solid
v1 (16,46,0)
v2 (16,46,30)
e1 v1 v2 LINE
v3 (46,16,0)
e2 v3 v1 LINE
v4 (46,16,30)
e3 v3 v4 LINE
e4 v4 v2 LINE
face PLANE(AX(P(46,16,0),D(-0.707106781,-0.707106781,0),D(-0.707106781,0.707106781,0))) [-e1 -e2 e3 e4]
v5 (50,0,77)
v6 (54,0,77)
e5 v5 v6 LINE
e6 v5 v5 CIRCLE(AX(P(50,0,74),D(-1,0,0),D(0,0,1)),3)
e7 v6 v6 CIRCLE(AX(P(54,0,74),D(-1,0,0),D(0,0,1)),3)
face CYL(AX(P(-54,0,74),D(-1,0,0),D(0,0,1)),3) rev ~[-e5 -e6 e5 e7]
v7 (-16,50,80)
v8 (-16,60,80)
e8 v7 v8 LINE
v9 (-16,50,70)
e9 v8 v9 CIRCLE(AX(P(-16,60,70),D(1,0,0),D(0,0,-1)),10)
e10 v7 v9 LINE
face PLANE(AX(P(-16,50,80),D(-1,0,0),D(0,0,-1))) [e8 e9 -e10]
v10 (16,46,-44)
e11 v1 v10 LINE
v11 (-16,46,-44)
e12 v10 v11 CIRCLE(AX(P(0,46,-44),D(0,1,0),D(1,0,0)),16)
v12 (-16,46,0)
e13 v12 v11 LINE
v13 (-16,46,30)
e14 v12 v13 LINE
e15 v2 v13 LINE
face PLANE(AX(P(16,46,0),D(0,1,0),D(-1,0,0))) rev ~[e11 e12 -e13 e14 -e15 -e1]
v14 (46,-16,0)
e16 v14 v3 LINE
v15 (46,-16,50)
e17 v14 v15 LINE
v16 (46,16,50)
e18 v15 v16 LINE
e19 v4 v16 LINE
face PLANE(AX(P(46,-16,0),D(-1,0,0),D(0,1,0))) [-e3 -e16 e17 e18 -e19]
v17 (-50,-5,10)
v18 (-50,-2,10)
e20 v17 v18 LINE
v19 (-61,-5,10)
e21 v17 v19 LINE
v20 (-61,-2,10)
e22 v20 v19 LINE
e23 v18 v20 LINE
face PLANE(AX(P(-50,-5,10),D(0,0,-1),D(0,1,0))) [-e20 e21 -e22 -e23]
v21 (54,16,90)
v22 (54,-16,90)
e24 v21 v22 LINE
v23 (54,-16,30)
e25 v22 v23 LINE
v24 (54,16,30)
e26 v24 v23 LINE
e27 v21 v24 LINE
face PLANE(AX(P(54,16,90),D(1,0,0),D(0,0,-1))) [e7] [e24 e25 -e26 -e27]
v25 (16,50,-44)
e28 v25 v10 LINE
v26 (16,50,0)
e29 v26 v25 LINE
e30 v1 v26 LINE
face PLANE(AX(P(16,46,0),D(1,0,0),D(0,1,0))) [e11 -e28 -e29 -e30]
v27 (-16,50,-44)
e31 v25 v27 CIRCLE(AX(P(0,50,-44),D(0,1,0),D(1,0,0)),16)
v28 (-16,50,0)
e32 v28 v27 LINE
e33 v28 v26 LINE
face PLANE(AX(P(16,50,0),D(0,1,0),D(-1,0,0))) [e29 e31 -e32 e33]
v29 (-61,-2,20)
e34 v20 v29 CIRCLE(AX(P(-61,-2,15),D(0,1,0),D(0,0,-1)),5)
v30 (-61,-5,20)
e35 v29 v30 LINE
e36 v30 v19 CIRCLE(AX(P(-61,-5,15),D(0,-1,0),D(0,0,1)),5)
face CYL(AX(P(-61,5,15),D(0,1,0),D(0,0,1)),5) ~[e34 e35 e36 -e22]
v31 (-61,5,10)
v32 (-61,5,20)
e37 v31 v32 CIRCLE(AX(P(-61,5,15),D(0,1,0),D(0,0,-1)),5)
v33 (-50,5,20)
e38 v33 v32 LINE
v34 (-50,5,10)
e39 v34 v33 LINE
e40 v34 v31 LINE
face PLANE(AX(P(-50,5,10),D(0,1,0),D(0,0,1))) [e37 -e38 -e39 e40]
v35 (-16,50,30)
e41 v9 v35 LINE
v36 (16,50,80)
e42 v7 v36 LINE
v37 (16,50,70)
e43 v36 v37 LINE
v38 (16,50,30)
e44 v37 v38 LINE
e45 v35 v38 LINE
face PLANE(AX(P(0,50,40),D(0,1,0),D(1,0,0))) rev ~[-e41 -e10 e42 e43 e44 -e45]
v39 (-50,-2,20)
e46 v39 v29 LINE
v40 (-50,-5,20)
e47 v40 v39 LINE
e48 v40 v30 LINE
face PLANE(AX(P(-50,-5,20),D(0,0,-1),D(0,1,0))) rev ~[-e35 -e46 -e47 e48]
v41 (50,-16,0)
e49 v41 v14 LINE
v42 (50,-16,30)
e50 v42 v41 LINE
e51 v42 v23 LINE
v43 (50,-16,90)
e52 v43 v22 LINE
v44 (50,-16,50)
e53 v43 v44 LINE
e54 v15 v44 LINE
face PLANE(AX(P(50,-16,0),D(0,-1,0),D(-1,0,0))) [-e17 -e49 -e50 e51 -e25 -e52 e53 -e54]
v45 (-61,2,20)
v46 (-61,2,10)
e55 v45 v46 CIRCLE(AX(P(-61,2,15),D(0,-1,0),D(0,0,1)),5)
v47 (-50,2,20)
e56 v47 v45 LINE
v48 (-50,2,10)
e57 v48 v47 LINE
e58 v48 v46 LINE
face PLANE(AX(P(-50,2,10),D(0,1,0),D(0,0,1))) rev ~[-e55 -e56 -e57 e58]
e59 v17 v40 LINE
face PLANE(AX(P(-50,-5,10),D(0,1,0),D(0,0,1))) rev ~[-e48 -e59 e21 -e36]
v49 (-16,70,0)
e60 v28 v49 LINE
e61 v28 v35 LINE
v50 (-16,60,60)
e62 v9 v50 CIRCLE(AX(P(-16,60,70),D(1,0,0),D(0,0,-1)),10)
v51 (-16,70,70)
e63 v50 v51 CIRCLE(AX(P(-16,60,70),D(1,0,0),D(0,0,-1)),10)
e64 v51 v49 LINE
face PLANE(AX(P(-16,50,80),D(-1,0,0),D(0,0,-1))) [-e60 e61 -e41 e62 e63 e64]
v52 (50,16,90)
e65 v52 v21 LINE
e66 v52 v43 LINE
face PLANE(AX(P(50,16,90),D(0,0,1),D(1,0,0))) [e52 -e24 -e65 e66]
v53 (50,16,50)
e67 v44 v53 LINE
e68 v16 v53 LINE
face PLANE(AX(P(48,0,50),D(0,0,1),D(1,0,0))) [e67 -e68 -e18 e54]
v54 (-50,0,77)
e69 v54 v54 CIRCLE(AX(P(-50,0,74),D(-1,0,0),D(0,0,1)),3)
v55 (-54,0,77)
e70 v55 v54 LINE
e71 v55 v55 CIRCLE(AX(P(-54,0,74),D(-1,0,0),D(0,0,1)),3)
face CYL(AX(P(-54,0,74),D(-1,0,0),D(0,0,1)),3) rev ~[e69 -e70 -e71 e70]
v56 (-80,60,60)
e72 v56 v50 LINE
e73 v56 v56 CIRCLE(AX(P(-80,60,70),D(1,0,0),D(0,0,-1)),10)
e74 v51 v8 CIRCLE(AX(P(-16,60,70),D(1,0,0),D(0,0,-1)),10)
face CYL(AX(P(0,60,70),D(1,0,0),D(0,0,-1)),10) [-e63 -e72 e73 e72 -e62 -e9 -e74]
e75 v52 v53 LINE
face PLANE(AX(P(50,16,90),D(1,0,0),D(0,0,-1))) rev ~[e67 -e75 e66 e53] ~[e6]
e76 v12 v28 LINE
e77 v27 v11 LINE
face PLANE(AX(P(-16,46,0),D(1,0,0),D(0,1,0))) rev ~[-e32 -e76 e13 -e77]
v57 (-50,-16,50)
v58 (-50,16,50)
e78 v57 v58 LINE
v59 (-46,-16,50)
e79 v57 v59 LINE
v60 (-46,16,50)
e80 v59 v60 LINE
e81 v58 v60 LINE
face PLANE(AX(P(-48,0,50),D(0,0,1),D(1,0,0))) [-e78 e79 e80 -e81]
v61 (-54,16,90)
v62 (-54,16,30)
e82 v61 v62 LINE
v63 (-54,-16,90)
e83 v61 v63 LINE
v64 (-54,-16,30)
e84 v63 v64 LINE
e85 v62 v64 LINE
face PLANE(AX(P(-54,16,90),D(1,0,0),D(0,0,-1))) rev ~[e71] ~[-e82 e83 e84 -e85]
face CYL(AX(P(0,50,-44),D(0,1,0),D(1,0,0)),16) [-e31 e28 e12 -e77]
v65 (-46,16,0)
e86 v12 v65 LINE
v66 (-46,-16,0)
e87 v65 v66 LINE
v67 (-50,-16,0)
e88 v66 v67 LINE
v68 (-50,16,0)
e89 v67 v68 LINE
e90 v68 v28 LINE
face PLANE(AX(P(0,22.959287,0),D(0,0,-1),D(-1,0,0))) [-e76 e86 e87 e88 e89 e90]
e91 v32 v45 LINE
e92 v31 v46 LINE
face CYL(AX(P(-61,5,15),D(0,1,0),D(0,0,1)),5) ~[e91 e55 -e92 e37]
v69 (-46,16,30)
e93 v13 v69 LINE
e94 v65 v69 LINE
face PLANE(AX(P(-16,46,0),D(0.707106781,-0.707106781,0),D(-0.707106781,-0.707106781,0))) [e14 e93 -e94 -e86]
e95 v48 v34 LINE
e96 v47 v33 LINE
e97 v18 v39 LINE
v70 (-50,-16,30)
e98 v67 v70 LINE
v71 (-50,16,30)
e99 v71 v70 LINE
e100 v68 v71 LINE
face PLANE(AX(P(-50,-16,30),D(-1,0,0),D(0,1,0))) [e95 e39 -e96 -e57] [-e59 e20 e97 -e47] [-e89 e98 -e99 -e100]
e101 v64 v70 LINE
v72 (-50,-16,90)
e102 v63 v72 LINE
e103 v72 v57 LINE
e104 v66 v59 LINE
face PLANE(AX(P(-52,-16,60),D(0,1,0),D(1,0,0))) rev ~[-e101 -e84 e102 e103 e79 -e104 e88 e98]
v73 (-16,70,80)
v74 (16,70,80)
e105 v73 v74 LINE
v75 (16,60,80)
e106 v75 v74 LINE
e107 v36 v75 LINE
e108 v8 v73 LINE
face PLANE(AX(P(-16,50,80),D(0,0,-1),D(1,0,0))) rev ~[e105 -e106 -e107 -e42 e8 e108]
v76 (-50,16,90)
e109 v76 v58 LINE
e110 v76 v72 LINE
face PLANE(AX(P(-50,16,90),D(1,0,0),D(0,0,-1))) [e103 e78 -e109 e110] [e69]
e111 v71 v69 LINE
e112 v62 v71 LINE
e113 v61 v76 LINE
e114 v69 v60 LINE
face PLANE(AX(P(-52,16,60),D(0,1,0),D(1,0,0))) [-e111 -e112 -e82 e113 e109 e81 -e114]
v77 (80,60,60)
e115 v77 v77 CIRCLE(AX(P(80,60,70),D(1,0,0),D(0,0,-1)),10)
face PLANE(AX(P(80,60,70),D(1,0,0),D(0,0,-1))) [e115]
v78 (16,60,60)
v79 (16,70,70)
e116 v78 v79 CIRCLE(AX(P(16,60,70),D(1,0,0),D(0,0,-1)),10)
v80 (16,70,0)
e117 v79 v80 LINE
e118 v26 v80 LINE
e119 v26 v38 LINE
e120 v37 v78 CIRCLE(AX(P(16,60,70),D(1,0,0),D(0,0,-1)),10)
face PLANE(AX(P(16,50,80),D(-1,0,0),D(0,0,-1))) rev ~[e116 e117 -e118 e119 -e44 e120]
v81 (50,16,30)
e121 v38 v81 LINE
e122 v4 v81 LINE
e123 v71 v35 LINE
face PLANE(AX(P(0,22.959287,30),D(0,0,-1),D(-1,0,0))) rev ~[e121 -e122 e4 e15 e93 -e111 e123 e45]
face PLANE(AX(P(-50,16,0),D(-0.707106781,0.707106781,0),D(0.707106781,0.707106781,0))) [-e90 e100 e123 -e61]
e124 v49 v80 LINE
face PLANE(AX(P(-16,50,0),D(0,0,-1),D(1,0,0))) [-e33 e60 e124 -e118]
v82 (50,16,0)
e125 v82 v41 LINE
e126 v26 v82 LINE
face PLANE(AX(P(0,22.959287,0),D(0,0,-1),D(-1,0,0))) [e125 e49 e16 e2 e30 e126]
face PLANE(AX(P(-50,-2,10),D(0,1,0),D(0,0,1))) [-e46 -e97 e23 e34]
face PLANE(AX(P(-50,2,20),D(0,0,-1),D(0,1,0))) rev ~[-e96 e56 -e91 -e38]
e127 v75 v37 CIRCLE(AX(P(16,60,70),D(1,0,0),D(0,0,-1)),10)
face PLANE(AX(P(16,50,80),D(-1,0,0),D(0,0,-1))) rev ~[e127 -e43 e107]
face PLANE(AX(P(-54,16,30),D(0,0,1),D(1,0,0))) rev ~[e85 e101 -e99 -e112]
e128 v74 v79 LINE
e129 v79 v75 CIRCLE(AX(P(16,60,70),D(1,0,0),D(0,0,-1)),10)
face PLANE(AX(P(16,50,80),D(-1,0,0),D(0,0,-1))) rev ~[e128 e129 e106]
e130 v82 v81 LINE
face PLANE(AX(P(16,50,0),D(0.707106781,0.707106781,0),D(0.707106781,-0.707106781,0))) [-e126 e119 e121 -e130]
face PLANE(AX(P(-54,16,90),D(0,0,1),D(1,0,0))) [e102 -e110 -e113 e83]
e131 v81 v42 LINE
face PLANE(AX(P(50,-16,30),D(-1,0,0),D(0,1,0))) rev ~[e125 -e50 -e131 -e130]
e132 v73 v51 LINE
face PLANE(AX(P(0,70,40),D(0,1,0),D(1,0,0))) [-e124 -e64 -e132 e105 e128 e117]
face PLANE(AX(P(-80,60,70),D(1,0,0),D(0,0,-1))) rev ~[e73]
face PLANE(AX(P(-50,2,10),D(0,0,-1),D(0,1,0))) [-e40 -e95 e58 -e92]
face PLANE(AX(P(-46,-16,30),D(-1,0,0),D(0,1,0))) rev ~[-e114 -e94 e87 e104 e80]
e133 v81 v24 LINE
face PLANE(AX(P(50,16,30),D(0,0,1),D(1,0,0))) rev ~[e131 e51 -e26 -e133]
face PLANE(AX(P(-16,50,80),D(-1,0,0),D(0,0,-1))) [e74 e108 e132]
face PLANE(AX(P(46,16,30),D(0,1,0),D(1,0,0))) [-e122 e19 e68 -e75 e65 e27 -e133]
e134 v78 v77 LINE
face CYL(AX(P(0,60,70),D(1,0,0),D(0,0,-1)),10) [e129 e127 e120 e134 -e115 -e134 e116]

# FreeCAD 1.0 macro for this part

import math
import FreeCAD as App
import Part
import Sketcher


def add_polygon(sketch, points):
    """Adds a closed chain of lines whose ends are joined by coincident constraints."""
    first, n = sketch.GeometryCount, len(points)
    for a, b in zip(points, points[1:] + points[:1]):
        sketch.addGeometry(Part.LineSegment(App.Vector(*a, 0), App.Vector(*b, 0)), False)
    for i in range(n):
        sketch.addConstraint(Sketcher.Constraint("Coincident", first + i, 2, first + (i + 1) % n, 1))

doc = App.newDocument("Part")
body = doc.addObject("PartDesign::Body", "Body")

sketch1 = body.newObject("Sketcher::SketchObject", "Sketch")
sketch1.AttachmentSupport = (doc.getObject("XY_Plane"), [""])
sketch1.MapMode = "FlatFace"
add_polygon(sketch1, [(-16, 50), (-50, 16), (-50, -16), (-46, -16), (-46, 16), (-16, 46), (16, 46), (46, 16), (46, -16), (50, -16), (50, 16), (16, 50)])
sketch1.addConstraint([
    Sketcher.Constraint("Vertical", 1),
    Sketcher.Constraint("Horizontal", 2),
    Sketcher.Constraint("Vertical", 3),
    Sketcher.Constraint("Horizontal", 5),
    Sketcher.Constraint("Vertical", 7),
    Sketcher.Constraint("Horizontal", 8),
    Sketcher.Constraint("Vertical", 9),
    Sketcher.Constraint("Horizontal", 11),
    Sketcher.Constraint("Symmetric", 2, 2, 6, 2, -1, 1),
    Sketcher.Constraint("Symmetric", 0, 2, 8, 2, -1, 1),
    Sketcher.Constraint("Parallel", 0, 4),
    Sketcher.Constraint("Perpendicular", 4, 6),
    Sketcher.Constraint("Parallel", 6, 10),
    Sketcher.Constraint("Horizontal", 0, 2, 3, 2),
    Sketcher.Constraint("Horizontal", 3, 2, 6, 2),
    Sketcher.Constraint("Horizontal", 6, 2, 9, 2),
    Sketcher.Constraint("Vertical", 5, 2, 10, 2),
    Sketcher.Constraint("Vertical", 4, 2, 11, 2),
    Sketcher.Constraint("Equal", 11, 1),
    Sketcher.Constraint("DistanceX", 2, 1, 2, 2, 4.0),
    Sketcher.Constraint("DistanceX", 5, 1, 5, 2, 32.0),
    Sketcher.Constraint("DistanceX", 0, 2, -1, 1, 50.0),
])
pad1 = body.newObject("PartDesign::Pad", "Pad")
pad1.Profile = sketch1
pad1.Length = 30

sketch2 = body.newObject("Sketcher::SketchObject", "Sketch001")
sketch2.AttachmentSupport = (doc.getObject("XY_Plane"), [""])
sketch2.MapMode = "FlatFace"
add_polygon(sketch2, [(16, 50), (16, 46), (-16, 46), (-16, 50)])
sketch2.addConstraint([
    Sketcher.Constraint("Vertical", 0),
    Sketcher.Constraint("Horizontal", 1),
    Sketcher.Constraint("Vertical", 2),
    Sketcher.Constraint("Horizontal", 3),
    Sketcher.Constraint("DistanceX", 1, 2, 1, 1, 32.0),
    Sketcher.Constraint("DistanceY", 0, 2, 0, 1, 4.0),
    Sketcher.Constraint("DistanceX", -1, 1, 0, 2, 16.0),
    Sketcher.Constraint("DistanceY", -1, 1, 0, 2, 46.0),
])
pad2 = body.newObject("PartDesign::Pad", "Pad001")
pad2.Profile = sketch2
pad2.Length = 60
pad2.Reversed = True

sketch3 = body.newObject("Sketcher::SketchObject", "Sketch002")
sketch3.AttachmentSupport = (doc.getObject("XZ_Plane"), [""])
sketch3.MapMode = "FlatFace"
sketch3.AttachmentOffset = App.Placement(App.Vector(0, 0, -50), App.Rotation())
sketch3.addGeometry([
    Part.LineSegment(App.Vector(-16, -67, 0), App.Vector(-16, -44, 0)),
    Part.ArcOfCircle(Part.Circle(App.Vector(0, -44, 0), App.Vector(0, 0, 1), 16), math.radians(180), math.radians(360)),
    Part.LineSegment(App.Vector(16, -44, 0), App.Vector(16, -67, 0)),
    Part.LineSegment(App.Vector(16, -67, 0), App.Vector(-16, -67, 0)),
], False)
sketch3.addConstraint([
    Sketcher.Constraint("Tangent", 0, 2, 1, 1),
    Sketcher.Constraint("Tangent", 1, 2, 2, 1),
    Sketcher.Constraint("Coincident", 2, 2, 3, 1),
    Sketcher.Constraint("Coincident", 3, 2, 0, 1),
    Sketcher.Constraint("Vertical", 0),
    Sketcher.Constraint("Vertical", 2),
    Sketcher.Constraint("Horizontal", 3),
    Sketcher.Constraint("PointOnObject", 1, 3, -2),
    Sketcher.Constraint("Radius", 1, 16.0),
    Sketcher.Constraint("DistanceY", 1, 3, -1, 1, 44.0),
    Sketcher.Constraint("DistanceY", 0, 1, 0, 2, 23.226605),
])
pocket1 = body.newObject("PartDesign::Pocket", "Pocket")
pocket1.Profile = sketch3
pocket1.Length = 30
pocket1.Reversed = True

sketch4 = body.newObject("Sketcher::SketchObject", "Sketch003")
sketch4.AttachmentSupport = (doc.getObject("YZ_Plane"), [""])
sketch4.MapMode = "FlatFace"
sketch4.AttachmentOffset = App.Placement(App.Vector(0, 0, -50), App.Rotation())
add_polygon(sketch4, [(-2, 10), (-5, 10), (-5, 20), (-2, 20)])
add_polygon(sketch4, [(5, 10), (2, 10), (2, 20), (5, 20)])
sketch4.addConstraint([
    Sketcher.Constraint("Horizontal", 0),
    Sketcher.Constraint("Vertical", 1),
    Sketcher.Constraint("Horizontal", 2),
    Sketcher.Constraint("Vertical", 3),
    Sketcher.Constraint("Horizontal", 4),
    Sketcher.Constraint("Vertical", 5),
    Sketcher.Constraint("Horizontal", 6),
    Sketcher.Constraint("Vertical", 7),
    Sketcher.Constraint("Symmetric", 3, 2, 4, 2, -2),
    Sketcher.Constraint("Symmetric", 1, 2, 6, 2, -2),
    Sketcher.Constraint("DistanceX", 0, 2, 0, 1, 3.0),
    Sketcher.Constraint("DistanceY", 1, 1, 1, 2, 10.0),
    Sketcher.Constraint("DistanceX", 0, 2, -1, 1, 5.0),
    Sketcher.Constraint("DistanceY", -1, 1, 0, 2, 10.0),
])
pad3 = body.newObject("PartDesign::Pad", "Pad002")
pad3.Profile = sketch4
pad3.Length = 16
pad3.Reversed = True

sketch5 = body.newObject("Sketcher::SketchObject", "Sketch004")
sketch5.AttachmentSupport = (doc.getObject("XZ_Plane"), [""])
sketch5.MapMode = "FlatFace"
sketch5.AttachmentOffset = App.Placement(App.Vector(0, 0, -5), App.Rotation())
sketch5.addGeometry([
    Part.LineSegment(App.Vector(-61, 10, 0), App.Vector(-68.87, 10, 0)),
    Part.LineSegment(App.Vector(-68.87, 10, 0), App.Vector(-68.87, 20.21, 0)),
    Part.LineSegment(App.Vector(-68.87, 20.21, 0), App.Vector(-61, 20.21, 0)),
    Part.LineSegment(App.Vector(-61, 20.21, 0), App.Vector(-61, 20, 0)),
    Part.ArcOfCircle(Part.Circle(App.Vector(-61, 15, 0), App.Vector(0, 0, 1), 5), math.radians(90), math.radians(270)),
], False)
sketch5.addConstraint([
    Sketcher.Constraint("Coincident", 0, 2, 1, 1),
    Sketcher.Constraint("Coincident", 1, 2, 2, 1),
    Sketcher.Constraint("Coincident", 2, 2, 3, 1),
    Sketcher.Constraint("Coincident", 3, 2, 4, 1),
    Sketcher.Constraint("Tangent", 4, 2, 0, 1),
    Sketcher.Constraint("Horizontal", 0),
    Sketcher.Constraint("Vertical", 1),
    Sketcher.Constraint("Horizontal", 2),
    Sketcher.Constraint("Vertical", 3),
    Sketcher.Constraint("Vertical", 4, 3, 2, 2),
    Sketcher.Constraint("Radius", 4, 5.0),
    Sketcher.Constraint("DistanceX", 4, 3, -1, 1, 61.0),
    Sketcher.Constraint("DistanceY", -1, 1, 4, 3, 15.0),
    Sketcher.Constraint("DistanceX", 0, 2, 0, 1, 7.871069),
    Sketcher.Constraint("DistanceY", 1, 1, 1, 2, 10.208655),
])
pocket2 = body.newObject("PartDesign::Pocket", "Pocket001")
pocket2.Profile = sketch5
pocket2.Length = 16
pocket2.Reversed = True

sketch6 = body.newObject("Sketcher::SketchObject", "Sketch005")
sketch6.AttachmentSupport = (doc.getObject("XY_Plane"), [""])
sketch6.MapMode = "FlatFace"
sketch6.AttachmentOffset = App.Placement(App.Vector(0, 0, 30), App.Rotation())
add_polygon(sketch6, [(-50, 16), (-50, -16), (-46, -16), (-46, 16)])
add_polygon(sketch6, [(46, 16), (46, -16), (50, -16), (50, 16)])
sketch6.addConstraint([
    Sketcher.Constraint("Vertical", 0),
    Sketcher.Constraint("Horizontal", 1),
    Sketcher.Constraint("Vertical", 2),
    Sketcher.Constraint("Horizontal", 3),
    Sketcher.Constraint("Vertical", 4),
    Sketcher.Constraint("Horizontal", 5),
    Sketcher.Constraint("Vertical", 6),
    Sketcher.Constraint("Horizontal", 7),
    Sketcher.Constraint("Symmetric", 2, 2, 4, 2, -1, 1),
    Sketcher.Constraint("Symmetric", 0, 2, 6, 2, -1, 1),
    Sketcher.Constraint("Horizontal", 1, 2, 4, 2),
    Sketcher.Constraint("DistanceX", 1, 1, 1, 2, 4.0),
    Sketcher.Constraint("DistanceY", 0, 2, 0, 1, 32.0),
    Sketcher.Constraint("DistanceX", 0, 2, -1, 1, 50.0),
])
pad4 = body.newObject("PartDesign::Pad", "Pad003")
pad4.Profile = sketch6
pad4.Length = 20

sketch7 = body.newObject("Sketcher::SketchObject", "Sketch006")
sketch7.AttachmentSupport = (doc.getObject("XZ_Plane"), [""])
sketch7.MapMode = "FlatFace"
sketch7.AttachmentOffset = App.Placement(App.Vector(0, 0, -16), App.Rotation())
add_polygon(sketch7, [(-54, 30), (-54, 90), (-50, 90), (-50, 30)])
add_polygon(sketch7, [(50, 30), (50, 90), (54, 90), (54, 30)])
sketch7.addConstraint([
    Sketcher.Constraint("Vertical", 0),
    Sketcher.Constraint("Horizontal", 1),
    Sketcher.Constraint("Vertical", 2),
    Sketcher.Constraint("Horizontal", 3),
    Sketcher.Constraint("Vertical", 4),
    Sketcher.Constraint("Horizontal", 5),
    Sketcher.Constraint("Vertical", 6),
    Sketcher.Constraint("Horizontal", 7),
    Sketcher.Constraint("Symmetric", 1, 2, 4, 2, -2),
    Sketcher.Constraint("Symmetric", 3, 2, 6, 2, -2),
    Sketcher.Constraint("DistanceX", 1, 1, 1, 2, 4.0),
    Sketcher.Constraint("DistanceY", 0, 1, 0, 2, 60.0),
    Sketcher.Constraint("DistanceX", 0, 2, -1, 1, 54.0),
    Sketcher.Constraint("DistanceY", -1, 1, 0, 2, 90.0),
])
pad5 = body.newObject("PartDesign::Pad", "Pad004")
pad5.Profile = sketch7
pad5.Length = 32

sketch8 = body.newObject("Sketcher::SketchObject", "Sketch007")
sketch8.AttachmentSupport = (doc.getObject("YZ_Plane"), [""])
sketch8.MapMode = "FlatFace"
sketch8.AttachmentOffset = App.Placement(App.Vector(0, 0, -54), App.Rotation())
sketch8.addGeometry(Part.Circle(App.Vector(0, 74, 0), App.Vector(0, 0, 1), 3), False)
sketch8.addConstraint([
    Sketcher.Constraint("PointOnObject", 0, 3, -2),
    Sketcher.Constraint("Diameter", 0, 6.0),
    Sketcher.Constraint("DistanceY", -1, 1, 0, 3, 74.0),
])
pocket3 = body.newObject("PartDesign::Pocket", "Pocket002")
pocket3.Profile = sketch8
pocket3.Type = "ThroughAll"
pocket3.Reversed = True

sketch9 = body.newObject("Sketcher::SketchObject", "Sketch008")
sketch9.AttachmentSupport = (doc.getObject("XZ_Plane"), [""])
sketch9.MapMode = "FlatFace"
sketch9.AttachmentOffset = App.Placement(App.Vector(0, 0, -50), App.Rotation())
add_polygon(sketch9, [(-16, 0), (-16, 80), (16, 80), (16, 0)])
sketch9.addConstraint([
    Sketcher.Constraint("Vertical", 0),
    Sketcher.Constraint("Horizontal", 1),
    Sketcher.Constraint("Vertical", 2),
    Sketcher.Constraint("Horizontal", 3),
    Sketcher.Constraint("Symmetric", 2, 2, 3, 2, -1, 1),
    Sketcher.Constraint("DistanceX", 1, 1, 1, 2, 32.0),
    Sketcher.Constraint("DistanceY", 0, 1, 0, 2, 80.0),
])
pad6 = body.newObject("PartDesign::Pad", "Pad005")
pad6.Profile = sketch9
pad6.Length = 20
pad6.Reversed = True

sketch10 = body.newObject("Sketcher::SketchObject", "Sketch009")
sketch10.AttachmentSupport = (doc.getObject("YZ_Plane"), [""])
sketch10.MapMode = "FlatFace"
sketch10.addGeometry(Part.Circle(App.Vector(60, 70, 0), App.Vector(0, 0, 1), 10), False)
sketch10.addConstraint([
    Sketcher.Constraint("Diameter", 0, 20.0),
    Sketcher.Constraint("DistanceX", -1, 1, 0, 3, 60.0),
    Sketcher.Constraint("DistanceY", -1, 1, 0, 3, 70.0),
])
pad7 = body.newObject("PartDesign::Pad", "Pad006")
pad7.Profile = sketch10
pad7.Length = 160
pad7.Midplane = True

doc.recompute()
